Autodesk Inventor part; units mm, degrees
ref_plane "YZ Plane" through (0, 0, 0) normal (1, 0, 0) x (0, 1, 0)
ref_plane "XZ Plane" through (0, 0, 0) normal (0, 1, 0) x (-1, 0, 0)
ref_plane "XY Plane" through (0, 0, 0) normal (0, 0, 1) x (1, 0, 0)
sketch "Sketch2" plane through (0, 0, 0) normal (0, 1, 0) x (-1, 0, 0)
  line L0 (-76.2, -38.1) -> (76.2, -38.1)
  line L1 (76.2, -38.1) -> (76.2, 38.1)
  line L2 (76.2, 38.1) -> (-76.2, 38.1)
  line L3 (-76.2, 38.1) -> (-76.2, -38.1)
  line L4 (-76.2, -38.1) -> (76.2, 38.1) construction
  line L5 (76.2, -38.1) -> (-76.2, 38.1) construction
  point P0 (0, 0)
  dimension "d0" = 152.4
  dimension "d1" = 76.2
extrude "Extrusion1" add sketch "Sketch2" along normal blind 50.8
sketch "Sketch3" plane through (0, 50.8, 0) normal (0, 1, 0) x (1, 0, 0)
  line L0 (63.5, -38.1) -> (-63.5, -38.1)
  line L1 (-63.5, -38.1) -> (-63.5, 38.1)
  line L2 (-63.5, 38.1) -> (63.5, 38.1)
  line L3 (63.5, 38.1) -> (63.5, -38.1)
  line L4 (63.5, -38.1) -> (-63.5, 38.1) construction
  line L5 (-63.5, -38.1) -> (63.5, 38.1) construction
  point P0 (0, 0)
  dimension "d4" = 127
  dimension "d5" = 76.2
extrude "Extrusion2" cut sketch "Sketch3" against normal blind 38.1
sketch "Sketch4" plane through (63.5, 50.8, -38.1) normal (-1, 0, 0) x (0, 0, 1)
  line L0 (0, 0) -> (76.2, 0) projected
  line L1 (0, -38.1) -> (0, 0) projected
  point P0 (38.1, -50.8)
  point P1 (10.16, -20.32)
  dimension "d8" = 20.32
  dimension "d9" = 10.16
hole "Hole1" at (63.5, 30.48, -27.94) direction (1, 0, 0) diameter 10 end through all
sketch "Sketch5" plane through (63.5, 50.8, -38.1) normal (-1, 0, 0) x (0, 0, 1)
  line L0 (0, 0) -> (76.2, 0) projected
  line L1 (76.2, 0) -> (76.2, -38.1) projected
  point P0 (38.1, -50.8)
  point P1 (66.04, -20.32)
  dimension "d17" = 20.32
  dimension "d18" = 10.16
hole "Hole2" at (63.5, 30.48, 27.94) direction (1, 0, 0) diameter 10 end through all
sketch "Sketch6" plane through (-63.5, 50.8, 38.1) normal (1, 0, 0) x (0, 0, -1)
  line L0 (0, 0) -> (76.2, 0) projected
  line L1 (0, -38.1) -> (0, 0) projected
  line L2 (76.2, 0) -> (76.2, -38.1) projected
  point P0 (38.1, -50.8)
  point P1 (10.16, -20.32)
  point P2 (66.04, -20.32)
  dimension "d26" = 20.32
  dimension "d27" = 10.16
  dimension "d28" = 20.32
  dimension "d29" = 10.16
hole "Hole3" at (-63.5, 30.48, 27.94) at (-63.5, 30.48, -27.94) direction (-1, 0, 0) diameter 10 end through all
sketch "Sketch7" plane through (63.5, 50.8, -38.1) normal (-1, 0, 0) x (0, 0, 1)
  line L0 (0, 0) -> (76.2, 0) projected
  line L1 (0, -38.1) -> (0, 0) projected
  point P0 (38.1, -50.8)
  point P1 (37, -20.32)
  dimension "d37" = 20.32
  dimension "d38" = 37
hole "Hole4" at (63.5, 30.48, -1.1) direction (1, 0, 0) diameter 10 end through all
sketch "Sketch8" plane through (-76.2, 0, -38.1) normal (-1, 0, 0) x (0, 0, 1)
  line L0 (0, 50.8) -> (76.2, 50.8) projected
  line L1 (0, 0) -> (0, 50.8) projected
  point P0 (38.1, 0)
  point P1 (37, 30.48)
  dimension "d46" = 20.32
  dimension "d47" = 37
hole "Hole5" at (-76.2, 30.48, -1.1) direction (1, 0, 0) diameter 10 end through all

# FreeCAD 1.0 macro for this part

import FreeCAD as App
import Part
import Sketcher
Q = App.Units.Quantity


def add_polygon(sketch, points):
    """Adds a closed chain of lines whose ends are joined by coincident constraints."""
    first, n = sketch.GeometryCount, len(points)
    for a, b in zip(points, points[1:] + points[:1]):
        sketch.addGeometry(Part.LineSegment(App.Vector(*a, 0), App.Vector(*b, 0)), False)
    for i in range(n):
        sketch.addConstraint(Sketcher.Constraint("Coincident", first + i, 2, first + (i + 1) % n, 1))

doc = App.newDocument("Part")
params = doc.addObject("Spreadsheet::Sheet", "Params")
for row, (alias, value) in enumerate([
    ("sketch1_width", "6 in"),
    ("sketch1_height", "3 in"),
    ("pad1_length", "2 in"),
    ("sketch2_width", "5 in"),
    ("sketch2_height", "3 in"),
    ("pocket1_length", "1.5 in"),
    ("hole_diameter", "0.3937008 in"),
    ("hole2_diameter", "0.3937008 in"),
    ("hole3_diameter", "0.3937008 in"),
    ("hole4_diameter", "0.3937008 in"),
    ("hole5_diameter", "0.3937008 in"),
], start=1):
    params.set(f"A{row}", alias)
    params.set(f"B{row}", "=" + value)
    params.setAlias(f"B{row}", alias)

body = doc.addObject("PartDesign::Body", "Body")

sketch1 = body.newObject("Sketcher::SketchObject", "Sketch")
sketch1.AttachmentSupport = (doc.getObject("XZ_Plane"), [""])
sketch1.MapMode = "FlatFace"
add_polygon(sketch1, [(76, 38), (76, -38), (-76, -38), (-76, 38)])
sketch1.addConstraint([
    Sketcher.Constraint("Vertical", 0),
    Sketcher.Constraint("Horizontal", 1),
    Sketcher.Constraint("Vertical", 2),
    Sketcher.Constraint("Horizontal", 3),
    Sketcher.Constraint("Symmetric", 0, 2, 2, 2, -1, 1),
    Sketcher.Constraint("DistanceX", 1, 2, 1, 1, Q("6 in")),
    Sketcher.Constraint("DistanceY", 0, 2, 0, 1, Q("3 in")),
])
sketch1.setExpression("Constraints[9]", "Params.sketch1_width")
sketch1.setExpression("Constraints[10]", "Params.sketch1_height")
pad1 = body.newObject("PartDesign::Pad", "Pad")
pad1.Profile = sketch1
pad1.setExpression("Length", "Params.pad1_length")
pad1.Reversed = True

sketch2 = body.newObject("Sketcher::SketchObject", "Sketch001")
sketch2.AttachmentSupport = (doc.getObject("XZ_Plane"), [""])
sketch2.MapMode = "FlatFace"
sketch2.AttachmentOffset = App.Placement(App.Vector(0, 0, -2 * 25.4), App.Rotation())
add_polygon(sketch2, [(-64, 38), (64, 38), (64, -38), (-64, -38)])
sketch2.addConstraint([
    Sketcher.Constraint("Horizontal", 0),
    Sketcher.Constraint("Vertical", 1),
    Sketcher.Constraint("Horizontal", 2),
    Sketcher.Constraint("Vertical", 3),
    Sketcher.Constraint("Symmetric", 0, 2, 2, 2, -1, 1),
    Sketcher.Constraint("DistanceX", 0, 1, 0, 2, Q("5 in")),
    Sketcher.Constraint("DistanceY", 1, 2, 1, 1, Q("3 in")),
])
sketch2.setExpression("Constraints[9]", "Params.sketch2_width")
sketch2.setExpression("Constraints[10]", "Params.sketch2_height")
pocket1 = body.newObject("PartDesign::Pocket", "Pocket")
pocket1.Profile = sketch2
pocket1.setExpression("Length", "Params.pocket1_length")
pocket1.Reversed = True

sketch3 = body.newObject("Sketcher::SketchObject", "Sketch002")
sketch3.AttachmentSupport = (doc.getObject("YZ_Plane"), [""])
sketch3.MapMode = "FlatFace"
sketch3.AttachmentOffset = App.Placement(App.Vector(0, 0, 2.5 * 25.4), App.Rotation())
sketch3.addGeometry(Part.Circle(App.Vector(30, -28, 0), App.Vector(0, 0, 1), 5), False)
sketch3.addConstraint([
    Sketcher.Constraint("Diameter", 0, Q("0.3937 in")),
    Sketcher.Constraint("DistanceX", -1, 1, 0, 3, Q("1.2 in")),
    Sketcher.Constraint("DistanceY", 0, 3, -1, 1, Q("1.1 in")),
])
doc.recompute()
hole = body.newObject("PartDesign::Hole", "Hole")
hole.Profile = sketch3
hole.ThreadType = "None"
hole.setExpression("Diameter", "Params.hole_diameter")
hole.DepthType = "ThroughAll"
hole.Reversed = True

sketch4 = body.newObject("Sketcher::SketchObject", "Sketch003")
sketch4.AttachmentSupport = (doc.getObject("YZ_Plane"), [""])
sketch4.MapMode = "FlatFace"
sketch4.AttachmentOffset = App.Placement(App.Vector(0, 0, 2.5 * 25.4), App.Rotation())
sketch4.addGeometry(Part.Circle(App.Vector(30, 28, 0), App.Vector(0, 0, 1), 5), False)
sketch4.addConstraint([
    Sketcher.Constraint("Diameter", 0, Q("0.3937 in")),
    Sketcher.Constraint("DistanceX", -1, 1, 0, 3, Q("1.2 in")),
    Sketcher.Constraint("DistanceY", -1, 1, 0, 3, Q("1.1 in")),
])
doc.recompute()
hole2 = body.newObject("PartDesign::Hole", "Hole001")
hole2.Profile = sketch4
hole2.ThreadType = "None"
hole2.setExpression("Diameter", "Params.hole2_diameter")
hole2.DepthType = "ThroughAll"
hole2.Reversed = True

sketch5 = body.newObject("Sketcher::SketchObject", "Sketch004")
sketch5.AttachmentSupport = (doc.getObject("YZ_Plane"), [""])
sketch5.MapMode = "FlatFace"
sketch5.AttachmentOffset = App.Placement(App.Vector(0, 0, -2.5 * 25.4), App.Rotation())
sketch5.addGeometry([
    Part.Circle(App.Vector(30, 28, 0), App.Vector(0, 0, 1), 5),
    Part.Circle(App.Vector(30, -28, 0), App.Vector(0, 0, 1), 5),
], False)
sketch5.addConstraint([
    Sketcher.Constraint("Equal", 0, 1),
    Sketcher.Constraint("Symmetric", 0, 3, 1, 3, -1),
    Sketcher.Constraint("Diameter", 0, Q("0.3937 in")),
    Sketcher.Constraint("DistanceX", -1, 1, 0, 3, Q("1.2 in")),
    Sketcher.Constraint("DistanceY", -1, 1, 0, 3, Q("1.1 in")),
])
doc.recompute()
hole3 = body.newObject("PartDesign::Hole", "Hole002")
hole3.Profile = sketch5
hole3.ThreadType = "None"
hole3.setExpression("Diameter", "Params.hole3_diameter")
hole3.DepthType = "ThroughAll"

sketch6 = body.newObject("Sketcher::SketchObject", "Sketch005")
sketch6.AttachmentSupport = (doc.getObject("YZ_Plane"), [""])
sketch6.MapMode = "FlatFace"
sketch6.AttachmentOffset = App.Placement(App.Vector(0, 0, 2.5 * 25.4), App.Rotation())
sketch6.addGeometry(Part.Circle(App.Vector(30, -1, 0), App.Vector(0, 0, 1), 5), False)
sketch6.addConstraint([
    Sketcher.Constraint("Diameter", 0, Q("0.3937 in")),
    Sketcher.Constraint("DistanceX", -1, 1, 0, 3, Q("1.2 in")),
    Sketcher.Constraint("DistanceY", 0, 3, -1, 1, Q("0.0433 in")),
])
doc.recompute()
hole4 = body.newObject("PartDesign::Hole", "Hole003")
hole4.Profile = sketch6
hole4.ThreadType = "None"
hole4.setExpression("Diameter", "Params.hole4_diameter")
hole4.DepthType = "ThroughAll"
hole4.Reversed = True

sketch7 = body.newObject("Sketcher::SketchObject", "Sketch006")
sketch7.AttachmentSupport = (doc.getObject("YZ_Plane"), [""])
sketch7.MapMode = "FlatFace"
sketch7.AttachmentOffset = App.Placement(App.Vector(0, 0, -3 * 25.4), App.Rotation())
sketch7.addGeometry(Part.Circle(App.Vector(30, -1, 0), App.Vector(0, 0, 1), 5), False)
sketch7.addConstraint([
    Sketcher.Constraint("Diameter", 0, Q("0.3937 in")),
    Sketcher.Constraint("DistanceX", -1, 1, 0, 3, Q("1.2 in")),
    Sketcher.Constraint("DistanceY", 0, 3, -1, 1, Q("0.0433 in")),
])
doc.recompute()
hole5 = body.newObject("PartDesign::Hole", "Hole004")
hole5.Profile = sketch7
hole5.ThreadType = "None"
hole5.setExpression("Diameter", "Params.hole5_diameter")
hole5.DepthType = "ThroughAll"
hole5.Reversed = True

doc.recompute()
